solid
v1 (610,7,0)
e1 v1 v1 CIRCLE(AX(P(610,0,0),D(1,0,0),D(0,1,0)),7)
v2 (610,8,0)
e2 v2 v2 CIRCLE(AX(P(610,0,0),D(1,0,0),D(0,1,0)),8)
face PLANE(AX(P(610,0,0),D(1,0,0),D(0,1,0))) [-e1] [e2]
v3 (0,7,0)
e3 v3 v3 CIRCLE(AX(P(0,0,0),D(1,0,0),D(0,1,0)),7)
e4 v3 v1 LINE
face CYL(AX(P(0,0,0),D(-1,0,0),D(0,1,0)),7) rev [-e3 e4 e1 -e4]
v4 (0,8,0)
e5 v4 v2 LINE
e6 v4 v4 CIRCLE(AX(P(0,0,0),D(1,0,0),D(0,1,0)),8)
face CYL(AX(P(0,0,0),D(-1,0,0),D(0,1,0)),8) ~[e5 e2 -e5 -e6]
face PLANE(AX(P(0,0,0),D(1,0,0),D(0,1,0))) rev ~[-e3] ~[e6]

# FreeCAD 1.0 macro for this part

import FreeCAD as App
import Part
import Sketcher
from FreeCAD import Vector

doc = App.newDocument("Part")
body = doc.addObject("PartDesign::Body", "Body")

# Sketch on YZ plane
sketch1 = doc.addObject("Sketcher::SketchObject", "Sketch")
body.addObject(sketch1)
sketch1.AttachmentSupport = (doc.YZ_Plane, [""])
sketch1.MapMode = "FlatFace"
sketch1.addGeometry([
    Part.Circle(Vector(0, 0, 0), Vector(0, 0, 1), 8),
    Part.Circle(Vector(0, 0, 0), Vector(0, 0, 1), 7),
], False)
sketch1.addConstraint([
    Sketcher.Constraint("Coincident", 0, 3, -1, 1),
    Sketcher.Constraint("Coincident", 1, 3, -1, 1),
    Sketcher.Constraint("Diameter", 0, 16.0),
    Sketcher.Constraint("Diameter", 1, 14.0),
])
pad1 = doc.addObject("PartDesign::Pad", "Pad")
body.addObject(pad1)
pad1.Profile = sketch1
pad1.Length = 610

doc.recompute()
